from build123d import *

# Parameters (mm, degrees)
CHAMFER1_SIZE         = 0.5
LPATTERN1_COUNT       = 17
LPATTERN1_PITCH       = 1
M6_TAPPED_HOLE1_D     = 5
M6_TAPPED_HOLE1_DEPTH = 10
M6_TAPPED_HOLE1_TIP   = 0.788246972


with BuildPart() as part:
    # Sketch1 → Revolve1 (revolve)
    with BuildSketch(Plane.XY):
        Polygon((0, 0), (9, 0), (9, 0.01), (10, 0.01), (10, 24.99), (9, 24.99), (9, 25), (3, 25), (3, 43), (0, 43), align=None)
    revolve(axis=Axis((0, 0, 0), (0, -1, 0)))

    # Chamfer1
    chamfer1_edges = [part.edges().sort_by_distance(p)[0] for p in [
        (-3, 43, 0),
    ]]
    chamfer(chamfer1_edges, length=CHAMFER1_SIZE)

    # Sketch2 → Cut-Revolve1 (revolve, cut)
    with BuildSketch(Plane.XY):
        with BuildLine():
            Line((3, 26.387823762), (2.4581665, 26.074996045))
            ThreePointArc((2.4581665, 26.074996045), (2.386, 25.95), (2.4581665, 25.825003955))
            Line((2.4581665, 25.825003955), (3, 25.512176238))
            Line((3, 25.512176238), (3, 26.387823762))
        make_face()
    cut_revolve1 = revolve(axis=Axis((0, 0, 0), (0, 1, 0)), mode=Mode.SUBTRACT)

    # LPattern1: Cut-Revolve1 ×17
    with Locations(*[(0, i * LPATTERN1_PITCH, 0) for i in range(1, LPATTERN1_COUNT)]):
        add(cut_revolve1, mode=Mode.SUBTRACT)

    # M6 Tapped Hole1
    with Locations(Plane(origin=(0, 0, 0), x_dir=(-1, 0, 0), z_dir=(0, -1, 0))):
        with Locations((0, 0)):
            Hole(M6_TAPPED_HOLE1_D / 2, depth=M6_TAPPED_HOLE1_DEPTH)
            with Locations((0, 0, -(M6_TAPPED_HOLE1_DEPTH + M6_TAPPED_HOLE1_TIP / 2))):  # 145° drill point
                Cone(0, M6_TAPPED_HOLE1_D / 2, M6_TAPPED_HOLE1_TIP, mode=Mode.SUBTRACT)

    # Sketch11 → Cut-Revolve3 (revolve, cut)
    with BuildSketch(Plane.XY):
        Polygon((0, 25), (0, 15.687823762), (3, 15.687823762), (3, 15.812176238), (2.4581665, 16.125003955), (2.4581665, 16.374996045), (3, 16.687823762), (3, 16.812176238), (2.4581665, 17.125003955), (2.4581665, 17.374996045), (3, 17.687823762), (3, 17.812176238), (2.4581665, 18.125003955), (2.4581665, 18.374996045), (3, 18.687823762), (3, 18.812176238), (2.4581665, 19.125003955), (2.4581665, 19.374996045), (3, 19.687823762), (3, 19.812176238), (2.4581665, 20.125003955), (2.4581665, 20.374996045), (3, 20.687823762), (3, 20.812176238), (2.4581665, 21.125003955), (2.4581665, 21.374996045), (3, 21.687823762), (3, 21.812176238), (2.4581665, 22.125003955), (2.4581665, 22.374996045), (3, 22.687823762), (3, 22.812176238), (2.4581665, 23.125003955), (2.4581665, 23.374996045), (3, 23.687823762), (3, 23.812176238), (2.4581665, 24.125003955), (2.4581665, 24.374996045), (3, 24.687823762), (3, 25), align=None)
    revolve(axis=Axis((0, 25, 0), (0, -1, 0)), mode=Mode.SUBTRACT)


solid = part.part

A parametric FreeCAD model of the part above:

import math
import FreeCAD as App
import Part
import Sketcher

V = App.Vector
Q = App.Units.Quantity


def edges_at(feature, points):
    """Names of the edges that pass closest to the given points."""
    edges = feature.Shape.Edges
    near = lambda p: min(range(len(edges)), key=lambda i: edges[i].distToShape(Part.Vertex(*p))[0])
    return sorted({f"Edge{near(p) + 1}" for p in points})


def add_polygon(sketch, points):
    """Adds a closed chain of lines whose ends are joined by coincident constraints."""
    first, n = sketch.GeometryCount, len(points)
    for a, b in zip(points, points[1:] + points[:1]):
        sketch.addGeometry(Part.LineSegment(App.Vector(*a, 0), App.Vector(*b, 0)), False)
    for i in range(n):
        sketch.addConstraint(Sketcher.Constraint("Coincident", first + i, 2, first + (i + 1) % n, 1))

doc = App.newDocument("Part")
body = doc.addObject("PartDesign::Body", "Body")
body.AllowCompound = True

# Sketch on XY plane
sketch1 = doc.addObject("Sketcher::SketchObject", "Sketch")
body.addObject(sketch1)
sketch1.AttachmentSupport = (doc.XY_Plane, [""])
sketch1.MapMode = "FlatFace"
add_polygon(sketch1, [(0, 0), (9, 0), (9, 0.01), (10, 0.01), (10, 24.99), (9, 24.99), (9, 25), (3, 25), (3, 43), (0, 43)])  # lines 0-9
sketch1.addConstraint(Sketcher.Constraint("Horizontal", 0))
sketch1.addConstraint(Sketcher.Constraint("Vertical", 1))
sketch1.addConstraint(Sketcher.Constraint("Horizontal", 2))
sketch1.addConstraint(Sketcher.Constraint("Vertical", 3))
sketch1.addConstraint(Sketcher.Constraint("Horizontal", 4))
sketch1.addConstraint(Sketcher.Constraint("Vertical", 5))
sketch1.addConstraint(Sketcher.Constraint("Horizontal", 6))
sketch1.addConstraint(Sketcher.Constraint("Vertical", 7))
sketch1.addConstraint(Sketcher.Constraint("Horizontal", 8))
sketch1.addConstraint(Sketcher.Constraint("Vertical", 9))
sketch1.addConstraint(Sketcher.Constraint("Coincident", 9, 2, -1, 1))
sketch1.addConstraint(Sketcher.Constraint("Vertical", 1, 2, 4, 2))
sketch1.addConstraint(Sketcher.Constraint("Equal", 1, 5))
sketch1.addConstraint(Sketcher.Constraint("DistanceX", 0, 1, 0, 2, Q("9 mm")))
sketch1.addConstraint(Sketcher.Constraint("DistanceX", 2, 1, 2, 2, Q("1 mm")))
sketch1.addConstraint(Sketcher.Constraint("DistanceX", 6, 2, 6, 1, Q("6 mm")))
sketch1.addConstraint(Sketcher.Constraint("DistanceY", 7, 1, 7, 2, Q("18 mm")))
sketch1.addConstraint(Sketcher.Constraint("DistanceY", 9, 2, 9, 1, Q("43 mm")))
sketch1.addConstraint(Sketcher.Constraint("DistanceY", 1, 1, 1, 2, Q("0.01 mm")))
revolution = doc.addObject("PartDesign::Revolution", "Revolution")
body.addObject(revolution)
revolution.Profile = sketch1
revolution.ReferenceAxis = (sketch1, ["V_Axis"])
revolution.Angle = 360
doc.recompute()

chamfer = doc.addObject("PartDesign::Chamfer", "Chamfer")
body.addObject(chamfer)
chamfer.Base = (revolution, edges_at(revolution, [(-3, 43, 0)]))
chamfer.Size = 0.5

# Sketch on XY plane
sketch2 = doc.addObject("Sketcher::SketchObject", "Sketch001")
body.addObject(sketch2)
sketch2.AttachmentSupport = (doc.XY_Plane, [""])
sketch2.MapMode = "FlatFace"
sketch2.addGeometry(Part.LineSegment(V(3, 26.387824, 0), V(2.458166, 26.074996, 0)), False)
sketch2.addGeometry(Part.ArcOfCircle(Part.Circle(V(2.530333, 25.95, 0), V(0, 0, 1), 0.144333), math.radians(120), math.radians(240)), False)
sketch2.addGeometry(Part.LineSegment(V(2.458166, 25.825004, 0), V(3, 25.512176, 0)), False)
sketch2.addGeometry(Part.LineSegment(V(3, 25.512176, 0), V(3, 26.387824, 0)), False)
sketch2.addConstraint(Sketcher.Constraint("Tangent", 0, 2, 1, 1))
sketch2.addConstraint(Sketcher.Constraint("Tangent", 1, 2, 2, 1))
sketch2.addConstraint(Sketcher.Constraint("Coincident", 2, 2, 3, 1))
sketch2.addConstraint(Sketcher.Constraint("Coincident", 3, 2, 0, 1))
sketch2.addConstraint(Sketcher.Constraint("Vertical", 3))
sketch2.addConstraint(Sketcher.Constraint("Vertical", 0, 2, 1, 2))
sketch2.addConstraint(Sketcher.Constraint("Angle", 0, Q("-150 deg")))
sketch2.addConstraint(Sketcher.Constraint("DistanceX", -1, 1, 2, 2, Q("3 mm")))
sketch2.addConstraint(Sketcher.Constraint("DistanceY", -1, 1, 1, 3, Q("25.95 mm")))
sketch2.addConstraint(Sketcher.Constraint("Radius", 1, Q("0.144333 mm")))
sketch2.addConstraint(Sketcher.Constraint("DistanceY", 3, 1, 3, 2, Q("0.875648 mm")))
groove = doc.addObject("PartDesign::Groove", "Groove")
body.addObject(groove)
groove.Profile = sketch2
groove.ReferenceAxis = (sketch2, ["V_Axis"])
groove.Angle = 360
doc.recompute()

linearpattern = doc.addObject("PartDesign::LinearPattern", "LinearPattern")
body.addObject(linearpattern)
linearpattern.Originals = [groove]
linearpattern.Direction = (doc.Y_Axis, [""])
linearpattern.Mode = "offset"
linearpattern.Offset = 1
linearpattern.Occurrences = 17
body.Tip = linearpattern

# Sketch on XZ plane
sketch3 = doc.addObject("Sketcher::SketchObject", "Sketch002")
body.addObject(sketch3)
sketch3.AttachmentSupport = (doc.XZ_Plane, [""])
sketch3.MapMode = "FlatFace"
sketch3.addGeometry(Part.Circle(V(0, 0, 0), V(0, 0, 1), 2.5), False)
sketch3.addConstraint(Sketcher.Constraint("Coincident", 0, 3, -1, 1))
sketch3.addConstraint(Sketcher.Constraint("Diameter", 0, Q("5 mm")))
doc.recompute()
hole = doc.addObject("PartDesign::Hole", "Hole")
body.addObject(hole)
hole.Profile = sketch3
hole.ThreadType = "None"
hole.Diameter = 5
hole.DepthType = "Dimension"
hole.Depth = 10
hole.DrillPoint = "Angled"
hole.DrillPointAngle = 145

# Sketch on XY plane
sketch4 = doc.addObject("Sketcher::SketchObject", "Sketch003")
body.addObject(sketch4)
sketch4.AttachmentSupport = (doc.XY_Plane, [""])
sketch4.MapMode = "FlatFace"
add_polygon(sketch4, [(0, 25), (0, 15.687824), (3, 15.687824), (3, 15.812176), (2.458166, 16.125004), (2.458166, 16.374996), (3, 16.687824), (3, 16.812176), (2.458166, 17.125004), (2.458166, 17.374996), (3, 17.687824), (3, 17.812176), (2.458166, 18.125004), (2.458166, 18.374996), (3, 18.687824), (3, 18.812176), (2.458166, 19.125004), (2.458166, 19.374996), (3, 19.687824), (3, 19.812176), (2.458166, 20.125004), (2.458166, 20.374996), (3, 20.687824), (3, 20.812176), (2.458166, 21.125004), (2.458166, 21.374996), (3, 21.687824), (3, 21.812176), (2.458166, 22.125004), (2.458166, 22.374996), (3, 22.687824), (3, 22.812176), (2.458166, 23.125004), (2.458166, 23.374996), (3, 23.687824), (3, 23.812176), (2.458166, 24.125004), (2.458166, 24.374996), (3, 24.687824), (3, 25)])  # lines 0-39
sketch4.addConstraint(Sketcher.Constraint("Vertical", 0))
sketch4.addConstraint(Sketcher.Constraint("Horizontal", 1))
sketch4.addConstraint(Sketcher.Constraint("Vertical", 2))
sketch4.addConstraint(Sketcher.Constraint("Vertical", 4))
sketch4.addConstraint(Sketcher.Constraint("Vertical", 6))
sketch4.addConstraint(Sketcher.Constraint("Vertical", 8))
sketch4.addConstraint(Sketcher.Constraint("Vertical", 10))
sketch4.addConstraint(Sketcher.Constraint("Vertical", 12))
sketch4.addConstraint(Sketcher.Constraint("Vertical", 14))
sketch4.addConstraint(Sketcher.Constraint("Vertical", 16))
sketch4.addConstraint(Sketcher.Constraint("Vertical", 18))
sketch4.addConstraint(Sketcher.Constraint("Vertical", 20))
sketch4.addConstraint(Sketcher.Constraint("Vertical", 22))
sketch4.addConstraint(Sketcher.Constraint("Vertical", 24))
sketch4.addConstraint(Sketcher.Constraint("Vertical", 26))
sketch4.addConstraint(Sketcher.Constraint("Vertical", 28))
sketch4.addConstraint(Sketcher.Constraint("Vertical", 30))
sketch4.addConstraint(Sketcher.Constraint("Vertical", 32))
sketch4.addConstraint(Sketcher.Constraint("Vertical", 34))
sketch4.addConstraint(Sketcher.Constraint("Vertical", 36))
sketch4.addConstraint(Sketcher.Constraint("Vertical", 38))
sketch4.addConstraint(Sketcher.Constraint("Horizontal", 39))
sketch4.addConstraint(Sketcher.Constraint("PointOnObject", 0, 2, -2))
sketch4.addConstraint(Sketcher.Constraint("Parallel", 3, 7))
sketch4.addConstraint(Sketcher.Constraint("Parallel", 5, 9))
sketch4.addConstraint(Sketcher.Constraint("Parallel", 7, 11))
sketch4.addConstraint(Sketcher.Constraint("Parallel", 9, 13))
sketch4.addConstraint(Sketcher.Constraint("Parallel", 11, 15))
sketch4.addConstraint(Sketcher.Constraint("Parallel", 13, 17))
sketch4.addConstraint(Sketcher.Constraint("Parallel", 15, 19))
sketch4.addConstraint(Sketcher.Constraint("Parallel", 17, 21))
sketch4.addConstraint(Sketcher.Constraint("Parallel", 19, 23))
sketch4.addConstraint(Sketcher.Constraint("Parallel", 21, 25))
sketch4.addConstraint(Sketcher.Constraint("Parallel", 23, 27))
sketch4.addConstraint(Sketcher.Constraint("Parallel", 25, 29))
sketch4.addConstraint(Sketcher.Constraint("Parallel", 27, 31))
sketch4.addConstraint(Sketcher.Constraint("Parallel", 29, 33))
sketch4.addConstraint(Sketcher.Constraint("Parallel", 31, 35))
sketch4.addConstraint(Sketcher.Constraint("Parallel", 33, 37))
sketch4.addConstraint(Sketcher.Constraint("Vertical", 2, 2, 5, 2))
sketch4.addConstraint(Sketcher.Constraint("Vertical", 4, 2, 7, 2))
sketch4.addConstraint(Sketcher.Constraint("Vertical", 6, 2, 9, 2))
sketch4.addConstraint(Sketcher.Constraint("Vertical", 8, 2, 11, 2))
sketch4.addConstraint(Sketcher.Constraint("Vertical", 10, 2, 13, 2))
sketch4.addConstraint(Sketcher.Constraint("Vertical", 12, 2, 15, 2))
sketch4.addConstraint(Sketcher.Constraint("Vertical", 14, 2, 17, 2))
sketch4.addConstraint(Sketcher.Constraint("Vertical", 16, 2, 19, 2))
sketch4.addConstraint(Sketcher.Constraint("Vertical", 18, 2, 21, 2))
sketch4.addConstraint(Sketcher.Constraint("Vertical", 20, 2, 23, 2))
sketch4.addConstraint(Sketcher.Constraint("Vertical", 22, 2, 25, 2))
sketch4.addConstraint(Sketcher.Constraint("Vertical", 24, 2, 27, 2))
sketch4.addConstraint(Sketcher.Constraint("Vertical", 26, 2, 29, 2))
sketch4.addConstraint(Sketcher.Constraint("Vertical", 28, 2, 31, 2))
sketch4.addConstraint(Sketcher.Constraint("Vertical", 30, 2, 33, 2))
sketch4.addConstraint(Sketcher.Constraint("Vertical", 32, 2, 35, 2))
sketch4.addConstraint(Sketcher.Constraint("Vertical", 34, 2, 37, 2))
sketch4.addConstraint(Sketcher.Constraint("Equal", 2, 6))
sketch4.addConstraint(Sketcher.Constraint("Equal", 4, 8))
sketch4.addConstraint(Sketcher.Constraint("Equal", 6, 10))
sketch4.addConstraint(Sketcher.Constraint("Equal", 8, 12))
sketch4.addConstraint(Sketcher.Constraint("Equal", 10, 14))
sketch4.addConstraint(Sketcher.Constraint("Equal", 12, 16))
sketch4.addConstraint(Sketcher.Constraint("Equal", 14, 18))
sketch4.addConstraint(Sketcher.Constraint("Equal", 16, 20))
sketch4.addConstraint(Sketcher.Constraint("Equal", 18, 22))
sketch4.addConstraint(Sketcher.Constraint("Equal", 20, 24))
sketch4.addConstraint(Sketcher.Constraint("Equal", 22, 26))
sketch4.addConstraint(Sketcher.Constraint("Equal", 24, 28))
sketch4.addConstraint(Sketcher.Constraint("Equal", 26, 30))
sketch4.addConstraint(Sketcher.Constraint("Equal", 28, 32))
sketch4.addConstraint(Sketcher.Constraint("Equal", 30, 34))
sketch4.addConstraint(Sketcher.Constraint("Equal", 32, 36))
sketch4.addConstraint(Sketcher.Constraint("Equal", 3, 5))
sketch4.addConstraint(Sketcher.Constraint("DistanceX", 1, 1, 1, 2, Q("3 mm")))
sketch4.addConstraint(Sketcher.Constraint("Angle", 3, Q("150 deg")))
sketch4.addConstraint(Sketcher.Constraint("DistanceY", -1, 1, 38, 2, Q("25 mm")))
sketch4.addConstraint(Sketcher.Constraint("DistanceY", 1, 2, 5, 2, Q("1 mm")))
sketch4.addConstraint(Sketcher.Constraint("DistanceY", 0, 2, 0, 1, Q("9.312176 mm")))
sketch4.addConstraint(Sketcher.Constraint("DistanceY", 2, 1, 2, 2, Q("0.124352 mm")))
sketch4.addConstraint(Sketcher.Constraint("DistanceY", 4, 1, 4, 2, Q("0.249992 mm")))
groove2 = doc.addObject("PartDesign::Groove", "Groove001")
body.addObject(groove2)
groove2.Profile = sketch4
groove2.ReferenceAxis = (sketch4, ["V_Axis"])
groove2.Angle = 360

doc.recompute()
